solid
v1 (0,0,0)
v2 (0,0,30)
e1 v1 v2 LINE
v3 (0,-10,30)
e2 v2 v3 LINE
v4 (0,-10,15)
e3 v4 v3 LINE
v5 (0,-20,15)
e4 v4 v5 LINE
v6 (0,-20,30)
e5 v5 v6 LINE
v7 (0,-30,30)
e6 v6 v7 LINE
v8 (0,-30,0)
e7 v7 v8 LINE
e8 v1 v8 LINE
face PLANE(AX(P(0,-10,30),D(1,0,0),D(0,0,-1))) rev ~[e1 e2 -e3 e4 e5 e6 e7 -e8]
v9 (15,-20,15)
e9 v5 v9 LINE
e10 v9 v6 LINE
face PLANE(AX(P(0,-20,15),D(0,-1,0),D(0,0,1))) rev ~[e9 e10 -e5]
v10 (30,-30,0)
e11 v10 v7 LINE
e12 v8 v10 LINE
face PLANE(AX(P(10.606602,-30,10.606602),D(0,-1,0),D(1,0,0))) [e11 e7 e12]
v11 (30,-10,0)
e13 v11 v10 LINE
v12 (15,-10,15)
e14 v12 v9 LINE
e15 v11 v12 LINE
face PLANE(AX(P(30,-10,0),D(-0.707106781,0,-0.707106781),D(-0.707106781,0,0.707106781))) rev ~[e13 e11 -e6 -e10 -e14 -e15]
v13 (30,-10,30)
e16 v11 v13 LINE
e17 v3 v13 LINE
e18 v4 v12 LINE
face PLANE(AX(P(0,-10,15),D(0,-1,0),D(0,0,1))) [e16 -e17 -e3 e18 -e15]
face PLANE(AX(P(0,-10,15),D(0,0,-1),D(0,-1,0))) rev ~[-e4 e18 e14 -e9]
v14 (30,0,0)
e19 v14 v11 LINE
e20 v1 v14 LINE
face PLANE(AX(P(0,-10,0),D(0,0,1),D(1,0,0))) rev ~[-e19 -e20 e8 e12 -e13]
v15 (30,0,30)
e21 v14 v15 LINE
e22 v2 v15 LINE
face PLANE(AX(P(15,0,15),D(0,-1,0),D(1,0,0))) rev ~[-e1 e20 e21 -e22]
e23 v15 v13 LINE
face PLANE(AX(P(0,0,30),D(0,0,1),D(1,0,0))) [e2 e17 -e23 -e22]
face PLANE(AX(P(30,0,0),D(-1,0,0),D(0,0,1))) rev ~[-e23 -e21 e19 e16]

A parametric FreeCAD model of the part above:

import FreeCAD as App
import Part
import Sketcher

V = App.Vector
Q = App.Units.Quantity


def add_polygon(sketch, points):
    """Adds a closed chain of lines whose ends are joined by coincident constraints."""
    first, n = sketch.GeometryCount, len(points)
    for a, b in zip(points, points[1:] + points[:1]):
        sketch.addGeometry(Part.LineSegment(App.Vector(*a, 0), App.Vector(*b, 0)), False)
    for i in range(n):
        sketch.addConstraint(Sketcher.Constraint("Coincident", first + i, 2, first + (i + 1) % n, 1))

doc = App.newDocument("Part")
body = doc.addObject("PartDesign::Body", "Body")

# Sketch on XZ plane
sketch1 = body.newObject("Sketcher::SketchObject", "Sketch")
sketch1.AttachmentSupport = (doc.getObject("XZ_Plane"), [""])
sketch1.MapMode = "FlatFace"
add_polygon(sketch1, [(0, 30), (0, 0), (30, 0), (30, 30)])  # lines 0-3
sketch1.addConstraint(Sketcher.Constraint("Vertical", 0))
sketch1.addConstraint(Sketcher.Constraint("Horizontal", 1))
sketch1.addConstraint(Sketcher.Constraint("Vertical", 2))
sketch1.addConstraint(Sketcher.Constraint("Horizontal", 3))
sketch1.addConstraint(Sketcher.Constraint("Coincident", 0, 2, -1, 1))
sketch1.addConstraint(Sketcher.Constraint("Equal", 3, 0))
sketch1.addConstraint(Sketcher.Constraint("DistanceX", 1, 1, 1, 2, Q("30 mm")))
pad1 = body.newObject("PartDesign::Pad", "Pad")
pad1.Profile = sketch1
pad1.Length = 10

# Sketch on XZ plane
sketch2 = body.newObject("Sketcher::SketchObject", "Sketch001")
sketch2.AttachmentSupport = (doc.getObject("XZ_Plane"), [""])
sketch2.MapMode = "FlatFace"
sketch2.AttachmentOffset = App.Placement(V(0, 0, 10), App.Rotation())
add_polygon(sketch2, [(0, 30), (0, 0), (30, 0)])  # lines 0-2
sketch2.addConstraint(Sketcher.Constraint("Vertical", 0))
sketch2.addConstraint(Sketcher.Constraint("Horizontal", 1))
sketch2.addConstraint(Sketcher.Constraint("Coincident", 0, 2, -1, 1))
sketch2.addConstraint(Sketcher.Constraint("Equal", 1, 0))
sketch2.addConstraint(Sketcher.Constraint("DistanceX", 1, 1, 1, 2, Q("30 mm")))
pad2 = body.newObject("PartDesign::Pad", "Pad001")
pad2.Profile = sketch2
pad2.Length = 20

# Sketch on YZ plane
sketch3 = body.newObject("Sketcher::SketchObject", "Sketch002")
sketch3.AttachmentSupport = (doc.getObject("YZ_Plane"), [""])
sketch3.MapMode = "FlatFace"
add_polygon(sketch3, [(-10, 30), (-10, 15), (-20, 15), (-20, 30)])  # lines 0-3
sketch3.addConstraint(Sketcher.Constraint("Vertical", 0))
sketch3.addConstraint(Sketcher.Constraint("Horizontal", 1))
sketch3.addConstraint(Sketcher.Constraint("Vertical", 2))
sketch3.addConstraint(Sketcher.Constraint("Horizontal", 3))
sketch3.addConstraint(Sketcher.Constraint("DistanceX", 1, 2, 1, 1, Q("10 mm")))
sketch3.addConstraint(Sketcher.Constraint("DistanceY", 0, 2, 0, 1, Q("15 mm")))
sketch3.addConstraint(Sketcher.Constraint("DistanceX", 0, 2, -1, 1, Q("10 mm")))
sketch3.addConstraint(Sketcher.Constraint("DistanceY", -1, 1, 0, 2, Q("15 mm")))
pocket1 = body.newObject("PartDesign::Pocket", "Pocket")
pocket1.Profile = sketch3
pocket1.Type = "ThroughAll"
pocket1.Reversed = True

doc.recompute()
